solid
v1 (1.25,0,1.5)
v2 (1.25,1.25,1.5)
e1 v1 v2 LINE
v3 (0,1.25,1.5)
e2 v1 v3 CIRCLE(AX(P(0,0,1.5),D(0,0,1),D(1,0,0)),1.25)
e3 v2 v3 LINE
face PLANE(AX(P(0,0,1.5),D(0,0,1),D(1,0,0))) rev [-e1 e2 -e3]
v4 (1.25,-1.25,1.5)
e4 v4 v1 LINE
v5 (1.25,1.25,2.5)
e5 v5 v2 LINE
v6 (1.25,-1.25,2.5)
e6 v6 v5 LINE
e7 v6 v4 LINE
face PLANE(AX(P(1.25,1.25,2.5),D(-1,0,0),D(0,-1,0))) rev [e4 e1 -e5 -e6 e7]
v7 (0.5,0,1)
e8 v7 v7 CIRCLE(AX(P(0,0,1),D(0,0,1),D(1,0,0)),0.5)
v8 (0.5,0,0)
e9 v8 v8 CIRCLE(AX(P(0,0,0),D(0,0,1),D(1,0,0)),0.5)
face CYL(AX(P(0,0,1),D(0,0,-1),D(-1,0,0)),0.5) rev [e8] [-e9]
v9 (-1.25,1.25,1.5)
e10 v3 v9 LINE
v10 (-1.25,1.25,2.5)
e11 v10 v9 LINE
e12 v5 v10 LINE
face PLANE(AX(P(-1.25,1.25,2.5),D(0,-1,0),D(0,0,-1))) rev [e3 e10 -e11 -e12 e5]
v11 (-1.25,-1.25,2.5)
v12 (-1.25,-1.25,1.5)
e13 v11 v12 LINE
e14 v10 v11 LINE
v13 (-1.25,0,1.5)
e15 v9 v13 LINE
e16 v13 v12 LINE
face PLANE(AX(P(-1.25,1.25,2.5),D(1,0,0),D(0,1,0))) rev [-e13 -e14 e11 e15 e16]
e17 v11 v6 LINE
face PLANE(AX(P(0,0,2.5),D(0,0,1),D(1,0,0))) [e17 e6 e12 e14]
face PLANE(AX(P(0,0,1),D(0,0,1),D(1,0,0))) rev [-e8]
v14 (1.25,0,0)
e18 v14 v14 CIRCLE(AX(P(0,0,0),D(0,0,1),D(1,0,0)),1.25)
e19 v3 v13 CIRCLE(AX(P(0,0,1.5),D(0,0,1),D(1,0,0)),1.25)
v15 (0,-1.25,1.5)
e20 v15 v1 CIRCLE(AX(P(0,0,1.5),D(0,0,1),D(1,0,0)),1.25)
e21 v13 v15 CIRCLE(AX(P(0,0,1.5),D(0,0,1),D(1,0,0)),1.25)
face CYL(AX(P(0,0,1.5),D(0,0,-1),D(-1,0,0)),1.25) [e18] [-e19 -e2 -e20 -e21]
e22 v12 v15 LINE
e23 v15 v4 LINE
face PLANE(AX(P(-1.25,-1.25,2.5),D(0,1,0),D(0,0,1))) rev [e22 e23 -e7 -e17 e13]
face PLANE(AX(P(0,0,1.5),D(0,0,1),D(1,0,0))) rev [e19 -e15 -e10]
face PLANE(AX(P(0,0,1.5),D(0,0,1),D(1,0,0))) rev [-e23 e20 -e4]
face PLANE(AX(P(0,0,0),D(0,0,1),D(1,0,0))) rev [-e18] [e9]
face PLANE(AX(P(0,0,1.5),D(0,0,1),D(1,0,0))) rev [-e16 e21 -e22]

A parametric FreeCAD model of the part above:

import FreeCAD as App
import Part
import Sketcher
from FreeCAD import Vector


def add_polygon(sketch, points):
    """Adds a closed chain of lines whose ends are joined by coincident constraints."""
    first, n = sketch.GeometryCount, len(points)
    for a, b in zip(points, points[1:] + points[:1]):
        sketch.addGeometry(Part.LineSegment(App.Vector(*a, 0), App.Vector(*b, 0)), False)
    for i in range(n):
        sketch.addConstraint(Sketcher.Constraint("Coincident", first + i, 2, first + (i + 1) % n, 1))

doc = App.newDocument("Part")
body = doc.addObject("PartDesign::Body", "Body")

sketch1 = body.newObject("Sketcher::SketchObject", "Sketch")
sketch1.AttachmentSupport = (doc.getObject("XY_Plane"), [""])
sketch1.MapMode = "FlatFace"
sketch1.addGeometry(Part.Circle(Vector(0, 0, 0), Vector(0, 0, 1), 1.25), False)
sketch1.addConstraint([
    Sketcher.Constraint("Coincident", 0, 3, -1, 1),
    Sketcher.Constraint("Diameter", 0, 2.5),
])
pad1 = body.newObject("PartDesign::Pad", "Pad")
pad1.Profile = sketch1
pad1.Length = 1.5

sketch2 = body.newObject("Sketcher::SketchObject", "Sketch001")
sketch2.AttachmentSupport = (doc.getObject("XY_Plane"), [""])
sketch2.MapMode = "FlatFace"
sketch2.addGeometry(Part.Circle(Vector(0, 0, 0), Vector(0, 0, 1), 0.5), False)
sketch2.addConstraint([
    Sketcher.Constraint("Coincident", 0, 3, -1, 1),
    Sketcher.Constraint("Diameter", 0, 1.0),
])
pocket1 = body.newObject("PartDesign::Pocket", "Pocket")
pocket1.Profile = sketch2
pocket1.Length = 1
pocket1.Reversed = True

sketch3 = body.newObject("Sketcher::SketchObject", "Sketch002")
sketch3.AttachmentSupport = (doc.getObject("XY_Plane"), [""])
sketch3.MapMode = "FlatFace"
sketch3.AttachmentOffset = App.Placement(Vector(0, 0, 1.5), App.Rotation())
add_polygon(sketch3, [(-1.25, 1.25), (-1.25, -1.25), (1.25, -1.25), (1.25, 1.25)])
sketch3.addConstraint([
    Sketcher.Constraint("Vertical", 0),
    Sketcher.Constraint("Horizontal", 1),
    Sketcher.Constraint("Vertical", 2),
    Sketcher.Constraint("Horizontal", 3),
    Sketcher.Constraint("Symmetric", 0, 2, 2, 2, -1, 1),
    Sketcher.Constraint("Equal", 3, 0),
    Sketcher.Constraint("DistanceX", 1, 1, 1, 2, 2.5),
])
pad2 = body.newObject("PartDesign::Pad", "Pad001")
pad2.Profile = sketch3
pad2.Length = 1

doc.recompute()
